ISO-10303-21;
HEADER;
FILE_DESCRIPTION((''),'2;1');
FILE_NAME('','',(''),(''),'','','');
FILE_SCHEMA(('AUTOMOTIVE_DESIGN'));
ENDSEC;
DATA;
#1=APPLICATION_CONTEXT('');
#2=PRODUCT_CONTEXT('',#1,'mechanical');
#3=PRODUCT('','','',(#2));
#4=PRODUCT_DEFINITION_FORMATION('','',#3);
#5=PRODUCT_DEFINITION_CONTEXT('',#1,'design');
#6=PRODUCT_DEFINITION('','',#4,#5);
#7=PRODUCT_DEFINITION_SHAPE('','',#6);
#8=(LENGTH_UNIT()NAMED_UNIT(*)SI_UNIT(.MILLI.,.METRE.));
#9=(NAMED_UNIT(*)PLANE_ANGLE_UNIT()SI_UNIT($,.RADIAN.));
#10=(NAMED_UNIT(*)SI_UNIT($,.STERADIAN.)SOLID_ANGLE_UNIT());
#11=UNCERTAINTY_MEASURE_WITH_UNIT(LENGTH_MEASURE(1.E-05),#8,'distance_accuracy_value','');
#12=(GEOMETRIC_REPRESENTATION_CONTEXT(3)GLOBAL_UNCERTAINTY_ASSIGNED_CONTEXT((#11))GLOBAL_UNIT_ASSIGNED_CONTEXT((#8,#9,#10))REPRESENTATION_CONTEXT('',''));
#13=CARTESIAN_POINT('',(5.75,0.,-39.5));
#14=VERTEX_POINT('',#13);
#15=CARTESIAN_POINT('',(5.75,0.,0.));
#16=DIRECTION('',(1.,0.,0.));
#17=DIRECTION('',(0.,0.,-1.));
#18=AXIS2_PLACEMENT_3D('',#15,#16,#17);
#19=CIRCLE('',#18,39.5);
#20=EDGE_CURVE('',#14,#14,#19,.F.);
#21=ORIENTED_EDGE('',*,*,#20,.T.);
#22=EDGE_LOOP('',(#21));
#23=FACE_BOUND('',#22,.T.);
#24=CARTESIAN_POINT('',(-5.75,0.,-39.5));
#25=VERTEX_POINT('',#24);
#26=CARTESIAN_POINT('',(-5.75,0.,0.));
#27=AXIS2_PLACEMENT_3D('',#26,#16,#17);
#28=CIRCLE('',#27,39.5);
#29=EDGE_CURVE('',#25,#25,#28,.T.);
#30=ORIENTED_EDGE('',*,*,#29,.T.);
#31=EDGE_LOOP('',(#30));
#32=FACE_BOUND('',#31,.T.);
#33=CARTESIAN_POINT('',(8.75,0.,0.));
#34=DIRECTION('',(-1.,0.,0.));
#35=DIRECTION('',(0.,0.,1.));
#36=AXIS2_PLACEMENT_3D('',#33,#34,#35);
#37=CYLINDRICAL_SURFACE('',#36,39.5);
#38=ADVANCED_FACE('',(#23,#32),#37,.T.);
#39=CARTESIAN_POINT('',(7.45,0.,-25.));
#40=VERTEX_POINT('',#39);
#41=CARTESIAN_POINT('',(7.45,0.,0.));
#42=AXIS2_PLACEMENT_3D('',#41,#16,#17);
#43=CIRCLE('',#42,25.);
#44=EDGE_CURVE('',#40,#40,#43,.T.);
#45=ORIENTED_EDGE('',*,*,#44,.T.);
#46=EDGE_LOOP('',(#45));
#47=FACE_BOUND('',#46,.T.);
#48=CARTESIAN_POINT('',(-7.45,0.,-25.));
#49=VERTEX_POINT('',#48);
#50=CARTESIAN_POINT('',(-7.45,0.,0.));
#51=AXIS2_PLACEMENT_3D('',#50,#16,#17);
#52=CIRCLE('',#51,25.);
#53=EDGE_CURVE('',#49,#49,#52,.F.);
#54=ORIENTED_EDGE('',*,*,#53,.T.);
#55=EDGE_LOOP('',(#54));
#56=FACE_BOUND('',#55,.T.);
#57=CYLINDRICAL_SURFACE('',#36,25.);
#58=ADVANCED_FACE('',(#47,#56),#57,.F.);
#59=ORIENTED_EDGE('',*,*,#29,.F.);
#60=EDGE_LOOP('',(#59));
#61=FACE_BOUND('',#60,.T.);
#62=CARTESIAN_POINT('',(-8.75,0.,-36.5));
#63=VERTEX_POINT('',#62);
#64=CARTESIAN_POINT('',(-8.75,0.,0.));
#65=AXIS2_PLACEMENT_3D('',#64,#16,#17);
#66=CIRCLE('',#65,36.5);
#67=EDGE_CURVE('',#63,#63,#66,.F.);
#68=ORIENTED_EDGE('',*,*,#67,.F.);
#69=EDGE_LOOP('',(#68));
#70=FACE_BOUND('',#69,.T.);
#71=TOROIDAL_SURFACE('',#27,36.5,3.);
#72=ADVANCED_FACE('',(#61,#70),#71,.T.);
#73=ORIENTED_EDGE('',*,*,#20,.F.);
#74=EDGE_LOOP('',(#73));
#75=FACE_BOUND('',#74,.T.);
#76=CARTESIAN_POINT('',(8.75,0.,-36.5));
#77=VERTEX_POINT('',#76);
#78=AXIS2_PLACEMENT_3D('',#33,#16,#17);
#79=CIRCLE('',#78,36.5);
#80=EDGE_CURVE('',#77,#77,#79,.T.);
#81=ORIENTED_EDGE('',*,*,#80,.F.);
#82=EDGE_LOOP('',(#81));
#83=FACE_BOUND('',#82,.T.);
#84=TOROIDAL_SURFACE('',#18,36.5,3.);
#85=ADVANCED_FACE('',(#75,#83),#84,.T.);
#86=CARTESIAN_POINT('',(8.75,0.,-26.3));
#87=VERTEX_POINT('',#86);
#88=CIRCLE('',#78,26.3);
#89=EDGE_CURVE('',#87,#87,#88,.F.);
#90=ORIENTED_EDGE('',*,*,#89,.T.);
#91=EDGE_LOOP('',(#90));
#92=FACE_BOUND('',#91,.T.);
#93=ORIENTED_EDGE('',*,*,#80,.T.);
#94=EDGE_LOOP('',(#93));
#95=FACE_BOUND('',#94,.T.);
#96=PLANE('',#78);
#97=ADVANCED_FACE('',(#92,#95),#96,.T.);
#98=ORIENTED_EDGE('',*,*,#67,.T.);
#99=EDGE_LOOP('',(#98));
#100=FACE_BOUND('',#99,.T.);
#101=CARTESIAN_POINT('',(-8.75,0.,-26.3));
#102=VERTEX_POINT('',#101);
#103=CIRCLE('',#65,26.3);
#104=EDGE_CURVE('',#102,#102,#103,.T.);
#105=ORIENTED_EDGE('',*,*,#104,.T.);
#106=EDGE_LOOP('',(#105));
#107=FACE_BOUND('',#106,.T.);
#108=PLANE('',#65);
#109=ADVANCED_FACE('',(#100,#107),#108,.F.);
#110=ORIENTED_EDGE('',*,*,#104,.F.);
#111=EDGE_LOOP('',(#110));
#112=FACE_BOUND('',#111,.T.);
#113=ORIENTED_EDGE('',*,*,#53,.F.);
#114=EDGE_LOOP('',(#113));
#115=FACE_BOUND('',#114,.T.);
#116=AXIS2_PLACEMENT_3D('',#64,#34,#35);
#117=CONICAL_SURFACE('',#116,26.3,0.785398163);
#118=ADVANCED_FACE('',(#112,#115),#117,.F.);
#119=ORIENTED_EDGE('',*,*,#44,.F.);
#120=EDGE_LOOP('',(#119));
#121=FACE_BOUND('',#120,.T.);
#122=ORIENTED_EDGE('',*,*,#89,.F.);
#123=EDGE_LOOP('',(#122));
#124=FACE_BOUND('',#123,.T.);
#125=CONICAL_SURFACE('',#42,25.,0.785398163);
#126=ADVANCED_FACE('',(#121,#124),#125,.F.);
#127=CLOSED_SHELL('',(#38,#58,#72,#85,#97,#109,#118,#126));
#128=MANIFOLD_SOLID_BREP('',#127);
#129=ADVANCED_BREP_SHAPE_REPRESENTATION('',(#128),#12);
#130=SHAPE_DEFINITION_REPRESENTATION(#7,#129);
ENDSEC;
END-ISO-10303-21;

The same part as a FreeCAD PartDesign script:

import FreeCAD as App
import Part
import Sketcher
from FreeCAD import Vector


def edges_at(feature, points):
    """Names of the edges that pass closest to the given points."""
    edges = feature.Shape.Edges
    near = lambda p: min(range(len(edges)), key=lambda i: edges[i].distToShape(Part.Vertex(*p))[0])
    return sorted({f"Edge{near(p) + 1}" for p in points})

doc = App.newDocument("Part")
body = doc.addObject("PartDesign::Body", "Body")

# Sketch on YZ plane
sketch1 = doc.addObject("Sketcher::SketchObject", "Sketch")
body.addObject(sketch1)
sketch1.AttachmentSupport = (doc.YZ_Plane, [""])
sketch1.MapMode = "FlatFace"
sketch1.addGeometry([
    Part.Circle(Vector(0, 0, 0), Vector(0, 0, 1), 39.5),
    Part.Circle(Vector(0, 0, 0), Vector(0, 0, 1), 25),
], False)
sketch1.addConstraint([
    Sketcher.Constraint("Coincident", 0, 3, -1, 1),
    Sketcher.Constraint("Coincident", 1, 3, -1, 1),
    Sketcher.Constraint("Diameter", 0, 79.0),
    Sketcher.Constraint("Diameter", 1, 50.0),
])
pad1 = doc.addObject("PartDesign::Pad", "Pad")
body.addObject(pad1)
pad1.Profile = sketch1
pad1.Length = 17.5
pad1.Midplane = True
doc.recompute()

fillet = doc.addObject("PartDesign::Fillet", "Fillet")
body.addObject(fillet)
fillet.Base = (pad1, edges_at(pad1, [(-8.75, 0, 39.5), (8.75, 0, 39.5)]))
fillet.Radius = 3
doc.recompute()

chamfer = doc.addObject("PartDesign::Chamfer", "Chamfer")
body.addObject(chamfer)
chamfer.Base = (fillet, edges_at(fillet, [(-8.75, 0, 25), (8.75, 0, 25)]))
chamfer.Size = 1.3

doc.recompute()
